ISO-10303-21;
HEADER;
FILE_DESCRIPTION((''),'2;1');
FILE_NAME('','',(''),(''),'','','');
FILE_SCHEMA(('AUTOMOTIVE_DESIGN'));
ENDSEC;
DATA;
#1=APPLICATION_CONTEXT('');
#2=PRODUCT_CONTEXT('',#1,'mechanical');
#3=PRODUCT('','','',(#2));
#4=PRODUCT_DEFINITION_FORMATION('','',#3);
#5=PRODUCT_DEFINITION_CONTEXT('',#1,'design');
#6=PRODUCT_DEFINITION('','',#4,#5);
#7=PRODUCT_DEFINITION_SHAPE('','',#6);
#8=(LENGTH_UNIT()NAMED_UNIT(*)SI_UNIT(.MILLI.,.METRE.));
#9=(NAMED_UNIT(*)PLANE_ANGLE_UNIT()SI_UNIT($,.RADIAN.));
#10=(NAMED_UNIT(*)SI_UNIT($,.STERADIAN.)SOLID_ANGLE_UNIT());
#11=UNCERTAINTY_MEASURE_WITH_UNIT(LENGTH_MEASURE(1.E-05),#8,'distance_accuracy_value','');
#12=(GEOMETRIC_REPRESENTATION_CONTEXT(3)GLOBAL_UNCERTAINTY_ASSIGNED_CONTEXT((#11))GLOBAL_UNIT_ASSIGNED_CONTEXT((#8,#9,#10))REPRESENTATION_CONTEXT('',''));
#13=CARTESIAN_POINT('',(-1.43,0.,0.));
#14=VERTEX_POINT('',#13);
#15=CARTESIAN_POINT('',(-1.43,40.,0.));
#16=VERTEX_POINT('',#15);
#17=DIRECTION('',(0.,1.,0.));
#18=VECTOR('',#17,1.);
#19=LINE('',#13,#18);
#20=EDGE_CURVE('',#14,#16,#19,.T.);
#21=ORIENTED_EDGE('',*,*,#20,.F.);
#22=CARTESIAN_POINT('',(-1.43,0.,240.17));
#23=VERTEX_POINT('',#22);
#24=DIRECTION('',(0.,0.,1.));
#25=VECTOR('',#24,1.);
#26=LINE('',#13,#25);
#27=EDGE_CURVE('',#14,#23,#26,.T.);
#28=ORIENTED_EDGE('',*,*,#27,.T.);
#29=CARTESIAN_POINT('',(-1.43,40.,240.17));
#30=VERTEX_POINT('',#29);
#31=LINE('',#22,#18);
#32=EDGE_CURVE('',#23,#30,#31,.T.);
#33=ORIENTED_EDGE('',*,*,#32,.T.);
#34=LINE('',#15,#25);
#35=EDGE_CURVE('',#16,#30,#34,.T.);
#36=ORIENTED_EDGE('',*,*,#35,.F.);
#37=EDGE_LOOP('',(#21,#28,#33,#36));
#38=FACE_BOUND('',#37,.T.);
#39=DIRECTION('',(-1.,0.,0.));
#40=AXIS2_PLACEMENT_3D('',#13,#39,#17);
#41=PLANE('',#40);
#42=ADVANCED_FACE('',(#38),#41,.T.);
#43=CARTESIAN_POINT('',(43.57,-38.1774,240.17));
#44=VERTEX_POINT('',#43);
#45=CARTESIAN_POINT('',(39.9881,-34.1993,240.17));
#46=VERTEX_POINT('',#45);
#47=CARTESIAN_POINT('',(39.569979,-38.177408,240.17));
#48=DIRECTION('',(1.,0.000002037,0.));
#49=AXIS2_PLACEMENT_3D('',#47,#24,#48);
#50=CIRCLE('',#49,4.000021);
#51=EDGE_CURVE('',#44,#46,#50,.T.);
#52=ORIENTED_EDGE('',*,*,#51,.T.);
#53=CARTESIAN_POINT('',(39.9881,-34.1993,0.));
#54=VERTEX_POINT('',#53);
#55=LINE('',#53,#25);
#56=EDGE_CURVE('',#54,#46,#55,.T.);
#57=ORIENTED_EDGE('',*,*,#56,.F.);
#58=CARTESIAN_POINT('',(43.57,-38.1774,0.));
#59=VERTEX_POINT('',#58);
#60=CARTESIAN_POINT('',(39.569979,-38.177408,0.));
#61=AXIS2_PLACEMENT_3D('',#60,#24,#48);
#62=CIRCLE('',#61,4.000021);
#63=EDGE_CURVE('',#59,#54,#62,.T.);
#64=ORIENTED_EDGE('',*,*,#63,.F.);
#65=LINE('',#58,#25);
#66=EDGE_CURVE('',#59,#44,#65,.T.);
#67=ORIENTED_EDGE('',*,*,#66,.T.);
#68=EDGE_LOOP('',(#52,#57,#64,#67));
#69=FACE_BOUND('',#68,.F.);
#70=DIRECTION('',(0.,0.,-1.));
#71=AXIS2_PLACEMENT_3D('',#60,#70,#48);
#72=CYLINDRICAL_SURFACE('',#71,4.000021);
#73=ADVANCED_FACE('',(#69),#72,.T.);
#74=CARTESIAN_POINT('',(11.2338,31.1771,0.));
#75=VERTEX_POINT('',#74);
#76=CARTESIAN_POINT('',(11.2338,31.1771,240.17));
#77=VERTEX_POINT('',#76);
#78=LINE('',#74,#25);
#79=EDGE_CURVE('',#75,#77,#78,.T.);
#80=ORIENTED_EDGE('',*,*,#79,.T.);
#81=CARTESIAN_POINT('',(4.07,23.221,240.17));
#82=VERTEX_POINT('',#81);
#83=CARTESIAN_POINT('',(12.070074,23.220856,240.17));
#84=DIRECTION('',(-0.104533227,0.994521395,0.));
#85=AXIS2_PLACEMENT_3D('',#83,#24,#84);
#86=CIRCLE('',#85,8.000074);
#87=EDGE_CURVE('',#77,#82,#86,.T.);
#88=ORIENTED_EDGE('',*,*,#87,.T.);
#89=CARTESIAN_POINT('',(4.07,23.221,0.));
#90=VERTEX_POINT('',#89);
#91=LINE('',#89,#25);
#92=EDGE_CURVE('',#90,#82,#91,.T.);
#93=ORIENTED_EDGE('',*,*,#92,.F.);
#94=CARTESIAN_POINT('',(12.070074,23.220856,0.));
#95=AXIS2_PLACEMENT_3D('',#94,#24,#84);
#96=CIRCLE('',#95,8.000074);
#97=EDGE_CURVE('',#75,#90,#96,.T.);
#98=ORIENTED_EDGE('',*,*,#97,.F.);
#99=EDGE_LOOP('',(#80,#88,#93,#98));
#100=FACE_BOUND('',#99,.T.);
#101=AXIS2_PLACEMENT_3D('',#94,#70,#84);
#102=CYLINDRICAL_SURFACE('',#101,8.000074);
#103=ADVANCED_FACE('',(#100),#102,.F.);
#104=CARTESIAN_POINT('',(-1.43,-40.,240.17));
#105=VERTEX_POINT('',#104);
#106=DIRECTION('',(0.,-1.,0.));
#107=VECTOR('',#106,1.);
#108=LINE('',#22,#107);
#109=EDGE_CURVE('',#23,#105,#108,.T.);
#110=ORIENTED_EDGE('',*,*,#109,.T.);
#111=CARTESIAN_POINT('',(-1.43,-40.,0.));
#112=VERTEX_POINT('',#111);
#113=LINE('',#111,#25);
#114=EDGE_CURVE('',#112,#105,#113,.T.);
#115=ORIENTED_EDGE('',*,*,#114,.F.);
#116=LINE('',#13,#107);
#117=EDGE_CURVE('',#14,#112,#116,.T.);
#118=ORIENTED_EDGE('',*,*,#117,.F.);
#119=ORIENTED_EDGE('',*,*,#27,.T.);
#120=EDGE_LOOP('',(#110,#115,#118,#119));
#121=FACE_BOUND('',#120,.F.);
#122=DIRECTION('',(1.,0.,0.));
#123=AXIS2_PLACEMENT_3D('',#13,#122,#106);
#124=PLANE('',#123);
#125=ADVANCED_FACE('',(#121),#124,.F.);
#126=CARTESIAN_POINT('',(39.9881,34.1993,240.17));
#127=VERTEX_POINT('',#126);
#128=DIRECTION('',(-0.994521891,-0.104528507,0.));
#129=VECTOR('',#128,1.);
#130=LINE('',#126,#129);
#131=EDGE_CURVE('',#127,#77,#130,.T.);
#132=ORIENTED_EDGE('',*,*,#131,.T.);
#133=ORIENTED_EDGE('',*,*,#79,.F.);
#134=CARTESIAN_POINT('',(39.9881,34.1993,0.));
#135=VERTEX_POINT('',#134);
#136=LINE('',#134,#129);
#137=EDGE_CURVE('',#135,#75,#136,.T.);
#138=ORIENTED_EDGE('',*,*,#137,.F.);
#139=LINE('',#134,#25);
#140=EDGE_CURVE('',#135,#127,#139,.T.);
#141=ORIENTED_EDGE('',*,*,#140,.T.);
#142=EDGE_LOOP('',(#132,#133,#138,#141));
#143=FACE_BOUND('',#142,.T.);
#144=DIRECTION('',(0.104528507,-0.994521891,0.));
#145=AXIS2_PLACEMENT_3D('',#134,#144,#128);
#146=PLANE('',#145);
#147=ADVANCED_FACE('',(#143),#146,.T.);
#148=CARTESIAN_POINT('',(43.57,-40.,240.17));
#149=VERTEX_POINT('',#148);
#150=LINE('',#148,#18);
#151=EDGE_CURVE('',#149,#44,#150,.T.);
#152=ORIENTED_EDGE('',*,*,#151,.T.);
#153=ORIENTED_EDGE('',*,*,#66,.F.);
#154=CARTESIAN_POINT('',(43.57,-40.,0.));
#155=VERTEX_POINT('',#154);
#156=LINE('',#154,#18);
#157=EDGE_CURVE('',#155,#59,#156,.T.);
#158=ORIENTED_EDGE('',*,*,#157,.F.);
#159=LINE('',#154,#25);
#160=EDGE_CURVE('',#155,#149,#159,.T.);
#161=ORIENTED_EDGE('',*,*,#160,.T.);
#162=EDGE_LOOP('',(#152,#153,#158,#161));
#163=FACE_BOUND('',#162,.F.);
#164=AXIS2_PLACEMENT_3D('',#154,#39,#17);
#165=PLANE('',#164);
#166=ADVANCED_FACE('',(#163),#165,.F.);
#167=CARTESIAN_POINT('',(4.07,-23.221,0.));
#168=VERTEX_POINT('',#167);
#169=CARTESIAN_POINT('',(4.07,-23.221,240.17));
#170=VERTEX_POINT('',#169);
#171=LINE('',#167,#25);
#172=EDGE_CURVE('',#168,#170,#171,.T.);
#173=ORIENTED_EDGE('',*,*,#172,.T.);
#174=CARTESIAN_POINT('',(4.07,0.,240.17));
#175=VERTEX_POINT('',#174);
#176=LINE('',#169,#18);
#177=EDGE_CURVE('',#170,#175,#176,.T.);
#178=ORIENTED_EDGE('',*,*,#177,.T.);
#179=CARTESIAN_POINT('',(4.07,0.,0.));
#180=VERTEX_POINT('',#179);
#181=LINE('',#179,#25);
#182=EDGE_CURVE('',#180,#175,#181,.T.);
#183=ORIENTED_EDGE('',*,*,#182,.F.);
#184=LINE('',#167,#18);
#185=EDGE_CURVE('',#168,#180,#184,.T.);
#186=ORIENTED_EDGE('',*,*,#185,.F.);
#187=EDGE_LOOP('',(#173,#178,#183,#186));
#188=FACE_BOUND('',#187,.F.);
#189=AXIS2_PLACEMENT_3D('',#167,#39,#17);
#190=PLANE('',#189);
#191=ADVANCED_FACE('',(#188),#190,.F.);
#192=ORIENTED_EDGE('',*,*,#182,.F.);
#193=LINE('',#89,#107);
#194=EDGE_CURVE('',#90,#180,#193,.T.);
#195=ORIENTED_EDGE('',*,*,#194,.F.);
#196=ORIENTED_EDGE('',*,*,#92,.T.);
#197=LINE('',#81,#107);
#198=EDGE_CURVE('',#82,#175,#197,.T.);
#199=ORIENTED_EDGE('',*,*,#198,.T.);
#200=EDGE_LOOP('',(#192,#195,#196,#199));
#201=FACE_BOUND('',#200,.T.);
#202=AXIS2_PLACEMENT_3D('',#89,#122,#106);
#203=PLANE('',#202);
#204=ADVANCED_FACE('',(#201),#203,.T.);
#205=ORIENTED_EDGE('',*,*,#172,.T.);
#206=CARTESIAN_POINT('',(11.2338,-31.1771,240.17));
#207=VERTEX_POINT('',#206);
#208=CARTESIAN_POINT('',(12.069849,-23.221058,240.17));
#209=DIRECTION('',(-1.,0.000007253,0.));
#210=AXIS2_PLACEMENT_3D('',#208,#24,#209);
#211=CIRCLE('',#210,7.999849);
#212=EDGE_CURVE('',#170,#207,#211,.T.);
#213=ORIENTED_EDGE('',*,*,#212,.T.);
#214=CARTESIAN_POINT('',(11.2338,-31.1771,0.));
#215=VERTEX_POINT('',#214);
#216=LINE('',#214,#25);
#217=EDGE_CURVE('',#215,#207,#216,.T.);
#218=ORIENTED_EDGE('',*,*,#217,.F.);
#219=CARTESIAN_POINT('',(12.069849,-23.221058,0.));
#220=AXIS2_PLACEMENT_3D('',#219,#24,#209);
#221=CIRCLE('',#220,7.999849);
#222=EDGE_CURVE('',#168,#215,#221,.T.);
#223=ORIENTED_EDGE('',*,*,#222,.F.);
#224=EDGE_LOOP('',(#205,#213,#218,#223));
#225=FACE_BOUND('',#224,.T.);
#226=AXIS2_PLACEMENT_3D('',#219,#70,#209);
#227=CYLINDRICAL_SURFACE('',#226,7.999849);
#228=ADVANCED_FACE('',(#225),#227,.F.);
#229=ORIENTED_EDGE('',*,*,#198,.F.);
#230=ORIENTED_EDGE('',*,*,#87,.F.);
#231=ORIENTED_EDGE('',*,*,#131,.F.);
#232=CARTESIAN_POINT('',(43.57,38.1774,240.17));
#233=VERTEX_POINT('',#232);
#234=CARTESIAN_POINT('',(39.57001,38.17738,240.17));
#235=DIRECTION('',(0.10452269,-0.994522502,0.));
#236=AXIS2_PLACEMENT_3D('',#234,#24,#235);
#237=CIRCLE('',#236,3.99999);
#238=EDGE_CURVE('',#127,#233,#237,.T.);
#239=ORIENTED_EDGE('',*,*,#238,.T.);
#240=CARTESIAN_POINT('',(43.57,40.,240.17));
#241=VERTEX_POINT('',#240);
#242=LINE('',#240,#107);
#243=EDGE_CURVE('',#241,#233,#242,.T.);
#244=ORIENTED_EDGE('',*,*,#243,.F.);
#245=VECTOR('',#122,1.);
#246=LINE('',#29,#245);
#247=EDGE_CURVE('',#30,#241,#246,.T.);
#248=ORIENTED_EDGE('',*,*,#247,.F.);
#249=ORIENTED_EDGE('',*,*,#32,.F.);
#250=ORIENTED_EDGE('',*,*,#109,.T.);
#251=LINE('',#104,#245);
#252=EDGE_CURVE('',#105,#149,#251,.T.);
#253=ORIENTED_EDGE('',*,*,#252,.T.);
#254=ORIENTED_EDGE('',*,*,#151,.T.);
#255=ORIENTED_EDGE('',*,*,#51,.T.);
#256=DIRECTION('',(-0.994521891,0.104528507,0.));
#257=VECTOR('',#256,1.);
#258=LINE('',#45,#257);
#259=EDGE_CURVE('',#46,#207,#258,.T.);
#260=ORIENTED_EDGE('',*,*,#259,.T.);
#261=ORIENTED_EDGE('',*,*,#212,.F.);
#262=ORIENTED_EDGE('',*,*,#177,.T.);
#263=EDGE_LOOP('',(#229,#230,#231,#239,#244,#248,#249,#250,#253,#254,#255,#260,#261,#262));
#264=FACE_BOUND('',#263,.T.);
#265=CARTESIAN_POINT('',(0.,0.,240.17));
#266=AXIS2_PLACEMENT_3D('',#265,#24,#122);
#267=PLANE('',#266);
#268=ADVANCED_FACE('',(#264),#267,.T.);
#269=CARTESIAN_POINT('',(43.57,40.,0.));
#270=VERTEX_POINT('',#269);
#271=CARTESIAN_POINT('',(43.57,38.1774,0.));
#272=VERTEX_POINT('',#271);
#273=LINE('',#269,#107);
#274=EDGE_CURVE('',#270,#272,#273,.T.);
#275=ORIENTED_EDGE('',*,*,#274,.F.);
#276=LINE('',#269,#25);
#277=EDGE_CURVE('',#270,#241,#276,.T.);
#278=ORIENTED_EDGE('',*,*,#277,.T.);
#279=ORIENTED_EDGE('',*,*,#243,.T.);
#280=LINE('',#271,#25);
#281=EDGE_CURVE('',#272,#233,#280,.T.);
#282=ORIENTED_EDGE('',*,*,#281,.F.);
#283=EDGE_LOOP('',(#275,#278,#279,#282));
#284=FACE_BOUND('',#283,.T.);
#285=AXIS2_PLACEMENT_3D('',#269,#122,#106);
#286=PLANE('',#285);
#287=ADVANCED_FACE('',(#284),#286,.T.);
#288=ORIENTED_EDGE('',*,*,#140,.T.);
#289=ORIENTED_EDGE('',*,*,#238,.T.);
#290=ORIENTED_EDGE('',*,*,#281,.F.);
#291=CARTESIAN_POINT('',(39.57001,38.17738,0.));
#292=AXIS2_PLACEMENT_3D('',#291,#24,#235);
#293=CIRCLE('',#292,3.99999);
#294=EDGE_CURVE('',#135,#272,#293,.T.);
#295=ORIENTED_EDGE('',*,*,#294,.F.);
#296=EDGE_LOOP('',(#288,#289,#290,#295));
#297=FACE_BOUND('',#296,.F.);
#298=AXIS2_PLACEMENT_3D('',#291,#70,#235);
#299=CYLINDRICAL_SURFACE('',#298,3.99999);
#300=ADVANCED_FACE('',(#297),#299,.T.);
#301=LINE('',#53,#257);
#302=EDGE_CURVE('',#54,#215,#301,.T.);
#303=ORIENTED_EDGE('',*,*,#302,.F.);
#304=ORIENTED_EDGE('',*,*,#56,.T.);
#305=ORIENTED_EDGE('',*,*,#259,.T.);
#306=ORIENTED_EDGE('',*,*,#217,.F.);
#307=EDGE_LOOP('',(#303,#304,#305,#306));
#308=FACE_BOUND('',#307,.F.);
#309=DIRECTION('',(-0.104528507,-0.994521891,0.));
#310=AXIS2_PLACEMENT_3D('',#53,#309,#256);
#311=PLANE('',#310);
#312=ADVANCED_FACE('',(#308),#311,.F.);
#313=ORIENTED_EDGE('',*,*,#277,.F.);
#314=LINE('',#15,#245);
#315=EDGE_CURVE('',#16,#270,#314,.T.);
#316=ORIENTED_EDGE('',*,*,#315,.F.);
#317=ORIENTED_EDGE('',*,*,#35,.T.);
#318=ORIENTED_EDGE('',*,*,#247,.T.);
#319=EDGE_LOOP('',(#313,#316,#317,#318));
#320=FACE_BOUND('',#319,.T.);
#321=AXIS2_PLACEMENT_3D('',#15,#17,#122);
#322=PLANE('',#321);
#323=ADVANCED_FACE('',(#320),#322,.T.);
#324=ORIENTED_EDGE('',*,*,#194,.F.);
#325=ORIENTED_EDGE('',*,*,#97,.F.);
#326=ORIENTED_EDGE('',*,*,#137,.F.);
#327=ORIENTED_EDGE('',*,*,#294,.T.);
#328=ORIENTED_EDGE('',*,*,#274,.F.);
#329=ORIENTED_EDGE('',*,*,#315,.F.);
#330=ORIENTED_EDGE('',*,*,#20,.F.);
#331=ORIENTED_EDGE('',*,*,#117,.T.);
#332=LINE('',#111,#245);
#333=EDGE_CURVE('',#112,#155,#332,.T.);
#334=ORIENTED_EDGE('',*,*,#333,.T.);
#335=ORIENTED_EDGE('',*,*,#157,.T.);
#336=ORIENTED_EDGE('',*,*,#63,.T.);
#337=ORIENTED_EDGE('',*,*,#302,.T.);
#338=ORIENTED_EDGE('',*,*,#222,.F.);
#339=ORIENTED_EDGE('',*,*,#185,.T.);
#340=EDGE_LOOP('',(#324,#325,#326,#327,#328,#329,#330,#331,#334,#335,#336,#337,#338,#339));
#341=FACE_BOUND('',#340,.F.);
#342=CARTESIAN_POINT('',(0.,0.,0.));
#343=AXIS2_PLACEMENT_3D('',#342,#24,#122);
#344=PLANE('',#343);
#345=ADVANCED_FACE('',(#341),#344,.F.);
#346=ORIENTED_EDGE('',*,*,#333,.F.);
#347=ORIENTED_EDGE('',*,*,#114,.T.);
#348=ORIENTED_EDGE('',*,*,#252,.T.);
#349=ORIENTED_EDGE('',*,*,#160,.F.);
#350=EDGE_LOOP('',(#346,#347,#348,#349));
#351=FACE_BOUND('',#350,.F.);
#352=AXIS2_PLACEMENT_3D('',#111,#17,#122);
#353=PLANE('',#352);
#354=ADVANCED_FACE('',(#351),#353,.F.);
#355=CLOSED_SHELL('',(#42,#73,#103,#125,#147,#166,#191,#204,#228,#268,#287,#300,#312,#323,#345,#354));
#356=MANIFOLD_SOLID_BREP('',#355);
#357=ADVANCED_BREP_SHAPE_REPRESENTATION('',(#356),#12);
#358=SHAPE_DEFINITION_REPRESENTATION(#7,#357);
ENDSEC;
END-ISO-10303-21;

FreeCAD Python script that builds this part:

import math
import FreeCAD as App
import Part
import Sketcher

V = App.Vector
Q = App.Units.Quantity

doc = App.newDocument("Part")
body = doc.addObject("PartDesign::Body", "Body")

sketch1 = body.newObject("Sketcher::SketchObject", "Sketch")
sketch1.AttachmentSupport = (doc.getObject("XY_Plane"), [""])
sketch1.MapMode = "FlatFace"
sketch1.addGeometry([
    Part.LineSegment(V(-1.43, 40, 0), V(-1.43, -40, 0)),
    Part.LineSegment(V(-1.43, -40, 0), V(43.57, -40, 0)),
    Part.LineSegment(V(43.57, -40, 0), V(43.57, -38.1774, 0)),
    Part.ArcOfCircle(Part.Circle(V(39.57, -38.1774, 0), V(0, 0, 1), 4), math.radians(0), math.radians(84.000216)),
    Part.LineSegment(V(39.9881, -34.1993, 0), V(11.2338, -31.1771, 0)),
    Part.ArcOfCircle(Part.Circle(V(12.07, -23.221, 0), V(0, 0, 1), 8), math.radians(180), math.radians(264.000141)),
    Part.LineSegment(V(4.07, -23.221, 0), V(4.07, 23.221, 0)),
    Part.ArcOfCircle(Part.Circle(V(12.07, 23.221, 0), V(0, 0, 1), 7.999922), math.radians(95.999859), math.radians(180)),
    Part.LineSegment(V(11.2338, 31.1771, 0), V(39.9881, 34.1993, 0)),
    Part.ArcOfCircle(Part.Circle(V(39.57, 38.1774, 0), V(0, 0, 1), 4.000011), math.radians(-84.000216), math.radians(0)),
    Part.LineSegment(V(43.57, 38.1774, 0), V(43.57, 40, 0)),
    Part.LineSegment(V(43.57, 40, 0), V(-1.43, 40, 0)),
], False)
sketch1.addConstraint([
    Sketcher.Constraint("Coincident", 0, 2, 1, 1),
    Sketcher.Constraint("Coincident", 1, 2, 2, 1),
    Sketcher.Constraint("Tangent", 2, 2, 3, 1),
    Sketcher.Constraint("Tangent", 3, 2, 4, 1),
    Sketcher.Constraint("Tangent", 4, 2, 5, 2),
    Sketcher.Constraint("Tangent", 5, 1, 6, 1),
    Sketcher.Constraint("Tangent", 6, 2, 7, 2),
    Sketcher.Constraint("Tangent", 7, 1, 8, 1),
    Sketcher.Constraint("Tangent", 8, 2, 9, 1),
    Sketcher.Constraint("Tangent", 9, 2, 10, 1),
    Sketcher.Constraint("Coincident", 10, 2, 11, 1),
    Sketcher.Constraint("Coincident", 11, 2, 0, 1),
    Sketcher.Constraint("Vertical", 0),
    Sketcher.Constraint("Horizontal", 1),
    Sketcher.Constraint("Vertical", 2),
    Sketcher.Constraint("Vertical", 6),
    Sketcher.Constraint("Vertical", 10),
    Sketcher.Constraint("Horizontal", 11),
    Sketcher.Constraint("Equal", 5, 7),
    Sketcher.Constraint("Equal", 3, 9),
    Sketcher.Constraint("Symmetric", 3, 3, 9, 3, -1),
    Sketcher.Constraint("Vertical", 4, 2, 7, 1),
    Sketcher.Constraint("Equal", 2, 10),
    Sketcher.Constraint("Radius", 3, 4.0),
    Sketcher.Constraint("Radius", 5, 8.0),
    Sketcher.Constraint("DistanceX", 1, 1, 1, 2, 45.0),
    Sketcher.Constraint("DistanceY", 0, 2, -1, 1, 40.0),
    Sketcher.Constraint("DistanceX", 0, 2, 5, 1, 5.5),
    Sketcher.Constraint("DistanceX", 0, 2, -1, 1, 1.43),
    Sketcher.Constraint("Angle", 4, Q("174 deg")),
    Sketcher.Constraint("DistanceY", 6, 1, 6, 2, 46.442),
])
pad1 = body.newObject("PartDesign::Pad", "Pad")
pad1.Profile = sketch1
pad1.Length = 240.17

doc.recompute()
